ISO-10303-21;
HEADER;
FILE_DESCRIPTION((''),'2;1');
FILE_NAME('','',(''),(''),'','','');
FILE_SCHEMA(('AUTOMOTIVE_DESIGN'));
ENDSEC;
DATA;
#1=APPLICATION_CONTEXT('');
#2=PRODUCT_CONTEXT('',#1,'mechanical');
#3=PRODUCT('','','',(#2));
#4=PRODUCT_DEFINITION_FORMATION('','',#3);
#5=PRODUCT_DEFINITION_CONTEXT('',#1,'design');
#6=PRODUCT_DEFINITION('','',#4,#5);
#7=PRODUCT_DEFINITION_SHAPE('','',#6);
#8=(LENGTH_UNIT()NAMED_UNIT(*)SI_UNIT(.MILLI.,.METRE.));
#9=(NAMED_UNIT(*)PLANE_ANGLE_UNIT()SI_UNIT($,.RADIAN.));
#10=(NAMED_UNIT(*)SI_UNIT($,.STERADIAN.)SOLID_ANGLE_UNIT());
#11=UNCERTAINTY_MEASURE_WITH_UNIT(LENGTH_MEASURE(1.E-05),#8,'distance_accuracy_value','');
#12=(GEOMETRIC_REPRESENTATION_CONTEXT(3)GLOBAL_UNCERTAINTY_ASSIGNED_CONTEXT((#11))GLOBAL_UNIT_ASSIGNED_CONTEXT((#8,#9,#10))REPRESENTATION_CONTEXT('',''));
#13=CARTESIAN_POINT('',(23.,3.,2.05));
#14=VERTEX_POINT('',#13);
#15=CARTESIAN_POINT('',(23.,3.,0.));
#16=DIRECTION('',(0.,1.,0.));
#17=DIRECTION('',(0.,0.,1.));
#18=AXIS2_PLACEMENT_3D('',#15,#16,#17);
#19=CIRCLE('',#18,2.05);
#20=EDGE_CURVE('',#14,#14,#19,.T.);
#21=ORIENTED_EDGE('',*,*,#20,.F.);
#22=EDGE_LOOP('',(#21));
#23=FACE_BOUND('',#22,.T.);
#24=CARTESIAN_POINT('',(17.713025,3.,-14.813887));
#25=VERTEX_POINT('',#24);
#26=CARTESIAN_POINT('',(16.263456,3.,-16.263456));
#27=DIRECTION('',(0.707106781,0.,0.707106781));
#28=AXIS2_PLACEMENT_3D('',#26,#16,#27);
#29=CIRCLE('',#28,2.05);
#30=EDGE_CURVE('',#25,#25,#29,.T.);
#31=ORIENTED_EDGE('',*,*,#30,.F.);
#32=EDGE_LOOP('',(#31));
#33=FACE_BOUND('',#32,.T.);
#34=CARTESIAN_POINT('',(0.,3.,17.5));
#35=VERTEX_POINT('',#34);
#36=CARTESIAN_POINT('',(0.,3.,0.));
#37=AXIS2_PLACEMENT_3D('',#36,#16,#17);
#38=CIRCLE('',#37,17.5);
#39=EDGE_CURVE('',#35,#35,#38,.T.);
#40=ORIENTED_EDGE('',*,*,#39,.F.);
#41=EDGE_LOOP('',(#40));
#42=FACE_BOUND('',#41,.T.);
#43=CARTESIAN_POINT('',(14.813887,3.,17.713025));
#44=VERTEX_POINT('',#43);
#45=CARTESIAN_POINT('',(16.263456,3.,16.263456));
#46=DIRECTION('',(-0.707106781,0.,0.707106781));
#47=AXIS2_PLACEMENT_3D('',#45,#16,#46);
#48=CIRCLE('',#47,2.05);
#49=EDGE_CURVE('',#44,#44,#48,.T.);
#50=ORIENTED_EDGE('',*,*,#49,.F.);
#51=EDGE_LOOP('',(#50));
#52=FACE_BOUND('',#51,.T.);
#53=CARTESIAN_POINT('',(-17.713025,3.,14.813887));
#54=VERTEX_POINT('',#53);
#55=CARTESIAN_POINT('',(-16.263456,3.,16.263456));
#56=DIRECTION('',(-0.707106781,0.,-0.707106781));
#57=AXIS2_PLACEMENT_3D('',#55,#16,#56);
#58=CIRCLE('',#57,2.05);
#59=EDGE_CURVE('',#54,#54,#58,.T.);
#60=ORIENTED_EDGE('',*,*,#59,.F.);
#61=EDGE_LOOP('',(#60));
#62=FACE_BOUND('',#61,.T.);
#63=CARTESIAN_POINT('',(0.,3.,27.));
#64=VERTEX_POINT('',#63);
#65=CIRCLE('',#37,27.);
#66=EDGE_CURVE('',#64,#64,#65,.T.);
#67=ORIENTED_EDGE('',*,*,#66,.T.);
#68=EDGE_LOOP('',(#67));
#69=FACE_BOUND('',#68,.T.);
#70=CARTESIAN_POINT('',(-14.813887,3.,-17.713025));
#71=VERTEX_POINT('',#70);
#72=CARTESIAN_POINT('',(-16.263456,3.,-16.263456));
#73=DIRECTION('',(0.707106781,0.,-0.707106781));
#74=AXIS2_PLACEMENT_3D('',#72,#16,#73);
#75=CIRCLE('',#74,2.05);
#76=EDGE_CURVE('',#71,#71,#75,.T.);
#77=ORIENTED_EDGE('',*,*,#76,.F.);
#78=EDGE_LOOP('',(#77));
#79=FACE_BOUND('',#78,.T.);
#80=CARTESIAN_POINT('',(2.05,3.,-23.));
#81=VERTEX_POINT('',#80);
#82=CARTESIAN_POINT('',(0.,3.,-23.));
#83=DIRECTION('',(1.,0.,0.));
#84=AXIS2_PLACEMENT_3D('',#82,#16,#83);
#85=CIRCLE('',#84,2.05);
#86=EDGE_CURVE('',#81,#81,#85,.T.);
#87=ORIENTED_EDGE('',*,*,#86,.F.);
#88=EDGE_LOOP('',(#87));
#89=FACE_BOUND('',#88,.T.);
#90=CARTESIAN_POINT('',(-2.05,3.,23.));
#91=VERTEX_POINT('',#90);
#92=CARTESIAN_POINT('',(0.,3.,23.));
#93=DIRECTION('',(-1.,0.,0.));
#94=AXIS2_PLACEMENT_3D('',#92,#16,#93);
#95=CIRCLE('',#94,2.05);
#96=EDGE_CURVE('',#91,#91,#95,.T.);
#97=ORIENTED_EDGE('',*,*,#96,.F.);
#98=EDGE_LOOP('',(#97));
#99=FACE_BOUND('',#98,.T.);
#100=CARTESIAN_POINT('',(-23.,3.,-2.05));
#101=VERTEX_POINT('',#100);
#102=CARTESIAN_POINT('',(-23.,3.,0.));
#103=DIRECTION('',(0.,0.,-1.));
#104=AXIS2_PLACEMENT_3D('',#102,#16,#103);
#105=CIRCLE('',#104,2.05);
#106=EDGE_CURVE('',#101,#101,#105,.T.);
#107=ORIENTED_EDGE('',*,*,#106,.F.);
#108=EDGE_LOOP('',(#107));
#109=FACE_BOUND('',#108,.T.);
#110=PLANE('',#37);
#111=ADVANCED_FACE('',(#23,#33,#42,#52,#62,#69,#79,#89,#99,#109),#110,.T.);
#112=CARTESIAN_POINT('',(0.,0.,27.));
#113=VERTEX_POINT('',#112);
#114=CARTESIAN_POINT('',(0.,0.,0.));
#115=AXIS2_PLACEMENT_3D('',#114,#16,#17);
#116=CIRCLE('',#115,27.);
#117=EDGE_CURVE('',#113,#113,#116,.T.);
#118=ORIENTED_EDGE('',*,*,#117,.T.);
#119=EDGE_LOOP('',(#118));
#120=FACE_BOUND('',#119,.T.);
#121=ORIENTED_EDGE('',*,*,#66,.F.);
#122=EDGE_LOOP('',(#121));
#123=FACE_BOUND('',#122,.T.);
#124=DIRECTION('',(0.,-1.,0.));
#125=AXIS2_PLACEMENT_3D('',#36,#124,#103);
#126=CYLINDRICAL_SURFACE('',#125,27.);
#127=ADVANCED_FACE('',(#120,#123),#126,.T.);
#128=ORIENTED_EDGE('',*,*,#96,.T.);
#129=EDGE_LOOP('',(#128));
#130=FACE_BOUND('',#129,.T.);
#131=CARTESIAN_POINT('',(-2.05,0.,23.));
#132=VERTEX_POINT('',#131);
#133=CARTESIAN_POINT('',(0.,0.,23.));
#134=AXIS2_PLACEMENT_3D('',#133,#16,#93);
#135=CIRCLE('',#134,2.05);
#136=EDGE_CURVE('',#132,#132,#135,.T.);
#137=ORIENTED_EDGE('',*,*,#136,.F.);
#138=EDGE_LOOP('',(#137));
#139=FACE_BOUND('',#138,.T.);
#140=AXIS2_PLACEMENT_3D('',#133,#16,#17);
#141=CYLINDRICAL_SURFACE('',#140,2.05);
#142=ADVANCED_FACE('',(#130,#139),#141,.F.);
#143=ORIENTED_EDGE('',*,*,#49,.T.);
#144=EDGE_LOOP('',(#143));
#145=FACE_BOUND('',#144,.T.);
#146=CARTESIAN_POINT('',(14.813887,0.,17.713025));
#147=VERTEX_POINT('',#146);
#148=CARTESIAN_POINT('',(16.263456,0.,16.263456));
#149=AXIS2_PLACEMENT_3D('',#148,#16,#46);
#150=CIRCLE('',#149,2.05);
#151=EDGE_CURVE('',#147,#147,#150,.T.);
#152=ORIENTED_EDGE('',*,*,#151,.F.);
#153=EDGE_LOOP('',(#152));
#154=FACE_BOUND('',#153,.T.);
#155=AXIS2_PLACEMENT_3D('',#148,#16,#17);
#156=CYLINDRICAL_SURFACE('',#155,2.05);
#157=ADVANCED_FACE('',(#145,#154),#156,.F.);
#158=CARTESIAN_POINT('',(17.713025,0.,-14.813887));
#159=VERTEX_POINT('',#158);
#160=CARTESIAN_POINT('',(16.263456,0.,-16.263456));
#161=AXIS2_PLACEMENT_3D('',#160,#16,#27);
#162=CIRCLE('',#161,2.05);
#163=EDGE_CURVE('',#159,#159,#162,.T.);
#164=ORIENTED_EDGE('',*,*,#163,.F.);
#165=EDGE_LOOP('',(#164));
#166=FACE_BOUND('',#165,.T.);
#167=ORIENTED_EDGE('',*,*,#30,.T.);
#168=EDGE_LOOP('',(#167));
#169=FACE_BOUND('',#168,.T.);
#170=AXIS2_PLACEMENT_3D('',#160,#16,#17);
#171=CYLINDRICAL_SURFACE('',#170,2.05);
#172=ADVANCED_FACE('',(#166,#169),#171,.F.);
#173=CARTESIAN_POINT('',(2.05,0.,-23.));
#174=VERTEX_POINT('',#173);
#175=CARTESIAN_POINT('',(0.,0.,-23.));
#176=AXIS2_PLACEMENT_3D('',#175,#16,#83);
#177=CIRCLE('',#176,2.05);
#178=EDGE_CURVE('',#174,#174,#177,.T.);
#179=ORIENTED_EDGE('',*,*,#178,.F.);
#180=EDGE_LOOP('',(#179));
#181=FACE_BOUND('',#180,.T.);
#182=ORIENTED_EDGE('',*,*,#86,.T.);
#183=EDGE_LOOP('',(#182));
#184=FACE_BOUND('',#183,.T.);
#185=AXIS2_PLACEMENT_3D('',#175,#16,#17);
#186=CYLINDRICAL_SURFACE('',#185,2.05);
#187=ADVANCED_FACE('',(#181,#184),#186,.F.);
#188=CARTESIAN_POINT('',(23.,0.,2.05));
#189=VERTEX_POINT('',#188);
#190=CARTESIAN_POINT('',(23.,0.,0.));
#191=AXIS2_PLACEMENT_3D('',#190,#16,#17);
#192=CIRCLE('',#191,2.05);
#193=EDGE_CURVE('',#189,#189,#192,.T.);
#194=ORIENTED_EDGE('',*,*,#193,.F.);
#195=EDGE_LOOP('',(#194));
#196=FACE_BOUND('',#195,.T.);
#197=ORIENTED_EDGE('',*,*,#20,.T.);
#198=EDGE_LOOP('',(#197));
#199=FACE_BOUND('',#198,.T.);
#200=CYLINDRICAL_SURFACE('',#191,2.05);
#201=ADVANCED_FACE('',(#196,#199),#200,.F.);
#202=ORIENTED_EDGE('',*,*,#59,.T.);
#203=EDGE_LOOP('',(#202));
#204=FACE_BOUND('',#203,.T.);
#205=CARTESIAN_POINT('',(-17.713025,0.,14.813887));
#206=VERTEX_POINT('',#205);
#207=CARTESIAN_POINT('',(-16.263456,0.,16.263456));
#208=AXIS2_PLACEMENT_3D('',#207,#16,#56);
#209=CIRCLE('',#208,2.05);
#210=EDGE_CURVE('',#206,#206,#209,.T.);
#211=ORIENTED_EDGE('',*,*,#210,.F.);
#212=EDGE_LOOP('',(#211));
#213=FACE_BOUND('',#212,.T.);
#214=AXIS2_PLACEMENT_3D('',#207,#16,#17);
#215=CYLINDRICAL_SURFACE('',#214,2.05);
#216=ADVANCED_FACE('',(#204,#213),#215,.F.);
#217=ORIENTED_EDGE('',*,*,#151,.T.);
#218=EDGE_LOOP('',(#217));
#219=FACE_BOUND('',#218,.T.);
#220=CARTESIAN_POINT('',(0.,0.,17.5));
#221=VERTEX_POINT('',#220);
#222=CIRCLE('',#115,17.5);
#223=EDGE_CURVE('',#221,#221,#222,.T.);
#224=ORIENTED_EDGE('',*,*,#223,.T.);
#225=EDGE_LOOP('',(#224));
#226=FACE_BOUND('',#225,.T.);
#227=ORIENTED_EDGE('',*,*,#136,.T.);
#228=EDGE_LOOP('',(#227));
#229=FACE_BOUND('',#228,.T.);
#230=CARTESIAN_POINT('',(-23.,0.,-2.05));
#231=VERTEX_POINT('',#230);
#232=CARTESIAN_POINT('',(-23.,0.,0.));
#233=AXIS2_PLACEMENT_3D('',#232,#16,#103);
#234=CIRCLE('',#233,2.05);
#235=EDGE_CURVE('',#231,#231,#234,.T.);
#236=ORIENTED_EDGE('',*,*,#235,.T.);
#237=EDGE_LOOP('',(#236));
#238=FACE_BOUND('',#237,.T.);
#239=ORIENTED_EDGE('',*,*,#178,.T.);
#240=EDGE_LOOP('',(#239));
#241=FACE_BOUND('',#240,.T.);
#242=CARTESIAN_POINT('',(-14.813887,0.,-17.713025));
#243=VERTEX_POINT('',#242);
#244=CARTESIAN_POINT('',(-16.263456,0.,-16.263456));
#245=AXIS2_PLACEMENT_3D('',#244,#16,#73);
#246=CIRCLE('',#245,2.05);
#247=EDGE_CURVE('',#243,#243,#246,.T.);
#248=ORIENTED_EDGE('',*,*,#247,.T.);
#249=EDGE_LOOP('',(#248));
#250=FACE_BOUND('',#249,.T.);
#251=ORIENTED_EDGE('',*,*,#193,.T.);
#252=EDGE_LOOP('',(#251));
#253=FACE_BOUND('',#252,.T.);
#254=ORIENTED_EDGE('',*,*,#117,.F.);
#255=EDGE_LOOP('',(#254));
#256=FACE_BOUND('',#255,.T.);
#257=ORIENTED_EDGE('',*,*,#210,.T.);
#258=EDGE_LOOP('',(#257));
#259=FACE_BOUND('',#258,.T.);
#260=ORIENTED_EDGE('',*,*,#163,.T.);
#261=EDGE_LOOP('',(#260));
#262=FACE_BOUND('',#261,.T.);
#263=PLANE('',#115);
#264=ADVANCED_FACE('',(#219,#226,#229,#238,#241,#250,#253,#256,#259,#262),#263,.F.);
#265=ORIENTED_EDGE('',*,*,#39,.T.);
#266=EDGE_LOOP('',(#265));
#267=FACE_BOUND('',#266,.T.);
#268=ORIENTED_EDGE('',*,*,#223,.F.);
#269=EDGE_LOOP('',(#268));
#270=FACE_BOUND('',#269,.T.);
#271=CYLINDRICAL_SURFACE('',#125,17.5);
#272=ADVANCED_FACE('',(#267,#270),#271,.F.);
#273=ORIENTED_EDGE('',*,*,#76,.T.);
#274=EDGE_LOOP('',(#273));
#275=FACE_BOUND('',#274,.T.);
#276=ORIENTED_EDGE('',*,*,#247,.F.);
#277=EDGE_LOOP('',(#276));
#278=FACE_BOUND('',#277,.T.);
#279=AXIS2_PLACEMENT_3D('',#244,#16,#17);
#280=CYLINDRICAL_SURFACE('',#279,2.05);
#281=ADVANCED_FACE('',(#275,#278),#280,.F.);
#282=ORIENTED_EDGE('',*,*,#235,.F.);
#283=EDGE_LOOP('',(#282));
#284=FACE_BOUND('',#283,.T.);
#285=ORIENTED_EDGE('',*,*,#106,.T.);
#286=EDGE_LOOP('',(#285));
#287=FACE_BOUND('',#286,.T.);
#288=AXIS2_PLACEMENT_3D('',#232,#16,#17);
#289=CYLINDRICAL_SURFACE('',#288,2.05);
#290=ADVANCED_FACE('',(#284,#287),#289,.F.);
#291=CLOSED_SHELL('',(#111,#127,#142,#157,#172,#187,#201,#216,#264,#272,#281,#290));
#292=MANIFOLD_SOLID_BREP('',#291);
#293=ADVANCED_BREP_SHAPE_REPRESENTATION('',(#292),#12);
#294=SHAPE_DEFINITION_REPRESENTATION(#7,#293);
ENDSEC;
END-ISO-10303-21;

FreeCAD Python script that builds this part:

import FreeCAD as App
import Part
import Sketcher

doc = App.newDocument("Part")
body = doc.addObject("PartDesign::Body", "Body")

# Sketch on XZ plane
sketch1 = body.newObject("Sketcher::SketchObject", "Sketch")
sketch1.AttachmentSupport = (doc.getObject("XZ_Plane"), [""])
sketch1.MapMode = "FlatFace"
sketch1.addGeometry(Part.Circle(App.Vector(0, 0, 0), App.Vector(0, 0, 1), 27), False)
sketch1.addGeometry(Part.Circle(App.Vector(0, 0, 0), App.Vector(0, 0, 1), 18), False)
sketch1.addConstraint(Sketcher.Constraint("Coincident", 0, 3, -1, 1))
sketch1.addConstraint(Sketcher.Constraint("Coincident", 1, 3, -1, 1))
sketch1.addConstraint(Sketcher.Constraint("Diameter", 0, 54.0))
sketch1.addConstraint(Sketcher.Constraint("Diameter", 1, 35.0))
pad1 = body.newObject("PartDesign::Pad", "Pad")
pad1.Profile = sketch1
pad1.Length = 3
pad1.Reversed = True

# Sketch on XZ plane
sketch2 = body.newObject("Sketcher::SketchObject", "Sketch001")
sketch2.AttachmentSupport = (doc.getObject("XZ_Plane"), [""])
sketch2.MapMode = "FlatFace"
sketch2.AttachmentOffset = App.Placement(App.Vector(0, 0, -3), App.Rotation())
sketch2.addGeometry(Part.Circle(App.Vector(23, 0, 0), App.Vector(0, 0, 1), 2), False)
sketch2.addConstraint(Sketcher.Constraint("PointOnObject", 0, 3, -1))
sketch2.addConstraint(Sketcher.Constraint("Diameter", 0, 4.1))
sketch2.addConstraint(Sketcher.Constraint("DistanceX", -1, 1, 0, 3, 23.0))
pocket1 = body.newObject("PartDesign::Pocket", "Pocket")
pocket1.Profile = sketch2
pocket1.Type = "ThroughAll"
pocket1.Reversed = True
doc.recompute()

polarpattern = body.newObject("PartDesign::PolarPattern", "PolarPattern")
polarpattern.Originals = [pocket1]
polarpattern.Axis = (doc.getObject("Y_Axis"), [""])
polarpattern.Angle = 360
polarpattern.Occurrences = 8
body.Tip = polarpattern

doc.recompute()
